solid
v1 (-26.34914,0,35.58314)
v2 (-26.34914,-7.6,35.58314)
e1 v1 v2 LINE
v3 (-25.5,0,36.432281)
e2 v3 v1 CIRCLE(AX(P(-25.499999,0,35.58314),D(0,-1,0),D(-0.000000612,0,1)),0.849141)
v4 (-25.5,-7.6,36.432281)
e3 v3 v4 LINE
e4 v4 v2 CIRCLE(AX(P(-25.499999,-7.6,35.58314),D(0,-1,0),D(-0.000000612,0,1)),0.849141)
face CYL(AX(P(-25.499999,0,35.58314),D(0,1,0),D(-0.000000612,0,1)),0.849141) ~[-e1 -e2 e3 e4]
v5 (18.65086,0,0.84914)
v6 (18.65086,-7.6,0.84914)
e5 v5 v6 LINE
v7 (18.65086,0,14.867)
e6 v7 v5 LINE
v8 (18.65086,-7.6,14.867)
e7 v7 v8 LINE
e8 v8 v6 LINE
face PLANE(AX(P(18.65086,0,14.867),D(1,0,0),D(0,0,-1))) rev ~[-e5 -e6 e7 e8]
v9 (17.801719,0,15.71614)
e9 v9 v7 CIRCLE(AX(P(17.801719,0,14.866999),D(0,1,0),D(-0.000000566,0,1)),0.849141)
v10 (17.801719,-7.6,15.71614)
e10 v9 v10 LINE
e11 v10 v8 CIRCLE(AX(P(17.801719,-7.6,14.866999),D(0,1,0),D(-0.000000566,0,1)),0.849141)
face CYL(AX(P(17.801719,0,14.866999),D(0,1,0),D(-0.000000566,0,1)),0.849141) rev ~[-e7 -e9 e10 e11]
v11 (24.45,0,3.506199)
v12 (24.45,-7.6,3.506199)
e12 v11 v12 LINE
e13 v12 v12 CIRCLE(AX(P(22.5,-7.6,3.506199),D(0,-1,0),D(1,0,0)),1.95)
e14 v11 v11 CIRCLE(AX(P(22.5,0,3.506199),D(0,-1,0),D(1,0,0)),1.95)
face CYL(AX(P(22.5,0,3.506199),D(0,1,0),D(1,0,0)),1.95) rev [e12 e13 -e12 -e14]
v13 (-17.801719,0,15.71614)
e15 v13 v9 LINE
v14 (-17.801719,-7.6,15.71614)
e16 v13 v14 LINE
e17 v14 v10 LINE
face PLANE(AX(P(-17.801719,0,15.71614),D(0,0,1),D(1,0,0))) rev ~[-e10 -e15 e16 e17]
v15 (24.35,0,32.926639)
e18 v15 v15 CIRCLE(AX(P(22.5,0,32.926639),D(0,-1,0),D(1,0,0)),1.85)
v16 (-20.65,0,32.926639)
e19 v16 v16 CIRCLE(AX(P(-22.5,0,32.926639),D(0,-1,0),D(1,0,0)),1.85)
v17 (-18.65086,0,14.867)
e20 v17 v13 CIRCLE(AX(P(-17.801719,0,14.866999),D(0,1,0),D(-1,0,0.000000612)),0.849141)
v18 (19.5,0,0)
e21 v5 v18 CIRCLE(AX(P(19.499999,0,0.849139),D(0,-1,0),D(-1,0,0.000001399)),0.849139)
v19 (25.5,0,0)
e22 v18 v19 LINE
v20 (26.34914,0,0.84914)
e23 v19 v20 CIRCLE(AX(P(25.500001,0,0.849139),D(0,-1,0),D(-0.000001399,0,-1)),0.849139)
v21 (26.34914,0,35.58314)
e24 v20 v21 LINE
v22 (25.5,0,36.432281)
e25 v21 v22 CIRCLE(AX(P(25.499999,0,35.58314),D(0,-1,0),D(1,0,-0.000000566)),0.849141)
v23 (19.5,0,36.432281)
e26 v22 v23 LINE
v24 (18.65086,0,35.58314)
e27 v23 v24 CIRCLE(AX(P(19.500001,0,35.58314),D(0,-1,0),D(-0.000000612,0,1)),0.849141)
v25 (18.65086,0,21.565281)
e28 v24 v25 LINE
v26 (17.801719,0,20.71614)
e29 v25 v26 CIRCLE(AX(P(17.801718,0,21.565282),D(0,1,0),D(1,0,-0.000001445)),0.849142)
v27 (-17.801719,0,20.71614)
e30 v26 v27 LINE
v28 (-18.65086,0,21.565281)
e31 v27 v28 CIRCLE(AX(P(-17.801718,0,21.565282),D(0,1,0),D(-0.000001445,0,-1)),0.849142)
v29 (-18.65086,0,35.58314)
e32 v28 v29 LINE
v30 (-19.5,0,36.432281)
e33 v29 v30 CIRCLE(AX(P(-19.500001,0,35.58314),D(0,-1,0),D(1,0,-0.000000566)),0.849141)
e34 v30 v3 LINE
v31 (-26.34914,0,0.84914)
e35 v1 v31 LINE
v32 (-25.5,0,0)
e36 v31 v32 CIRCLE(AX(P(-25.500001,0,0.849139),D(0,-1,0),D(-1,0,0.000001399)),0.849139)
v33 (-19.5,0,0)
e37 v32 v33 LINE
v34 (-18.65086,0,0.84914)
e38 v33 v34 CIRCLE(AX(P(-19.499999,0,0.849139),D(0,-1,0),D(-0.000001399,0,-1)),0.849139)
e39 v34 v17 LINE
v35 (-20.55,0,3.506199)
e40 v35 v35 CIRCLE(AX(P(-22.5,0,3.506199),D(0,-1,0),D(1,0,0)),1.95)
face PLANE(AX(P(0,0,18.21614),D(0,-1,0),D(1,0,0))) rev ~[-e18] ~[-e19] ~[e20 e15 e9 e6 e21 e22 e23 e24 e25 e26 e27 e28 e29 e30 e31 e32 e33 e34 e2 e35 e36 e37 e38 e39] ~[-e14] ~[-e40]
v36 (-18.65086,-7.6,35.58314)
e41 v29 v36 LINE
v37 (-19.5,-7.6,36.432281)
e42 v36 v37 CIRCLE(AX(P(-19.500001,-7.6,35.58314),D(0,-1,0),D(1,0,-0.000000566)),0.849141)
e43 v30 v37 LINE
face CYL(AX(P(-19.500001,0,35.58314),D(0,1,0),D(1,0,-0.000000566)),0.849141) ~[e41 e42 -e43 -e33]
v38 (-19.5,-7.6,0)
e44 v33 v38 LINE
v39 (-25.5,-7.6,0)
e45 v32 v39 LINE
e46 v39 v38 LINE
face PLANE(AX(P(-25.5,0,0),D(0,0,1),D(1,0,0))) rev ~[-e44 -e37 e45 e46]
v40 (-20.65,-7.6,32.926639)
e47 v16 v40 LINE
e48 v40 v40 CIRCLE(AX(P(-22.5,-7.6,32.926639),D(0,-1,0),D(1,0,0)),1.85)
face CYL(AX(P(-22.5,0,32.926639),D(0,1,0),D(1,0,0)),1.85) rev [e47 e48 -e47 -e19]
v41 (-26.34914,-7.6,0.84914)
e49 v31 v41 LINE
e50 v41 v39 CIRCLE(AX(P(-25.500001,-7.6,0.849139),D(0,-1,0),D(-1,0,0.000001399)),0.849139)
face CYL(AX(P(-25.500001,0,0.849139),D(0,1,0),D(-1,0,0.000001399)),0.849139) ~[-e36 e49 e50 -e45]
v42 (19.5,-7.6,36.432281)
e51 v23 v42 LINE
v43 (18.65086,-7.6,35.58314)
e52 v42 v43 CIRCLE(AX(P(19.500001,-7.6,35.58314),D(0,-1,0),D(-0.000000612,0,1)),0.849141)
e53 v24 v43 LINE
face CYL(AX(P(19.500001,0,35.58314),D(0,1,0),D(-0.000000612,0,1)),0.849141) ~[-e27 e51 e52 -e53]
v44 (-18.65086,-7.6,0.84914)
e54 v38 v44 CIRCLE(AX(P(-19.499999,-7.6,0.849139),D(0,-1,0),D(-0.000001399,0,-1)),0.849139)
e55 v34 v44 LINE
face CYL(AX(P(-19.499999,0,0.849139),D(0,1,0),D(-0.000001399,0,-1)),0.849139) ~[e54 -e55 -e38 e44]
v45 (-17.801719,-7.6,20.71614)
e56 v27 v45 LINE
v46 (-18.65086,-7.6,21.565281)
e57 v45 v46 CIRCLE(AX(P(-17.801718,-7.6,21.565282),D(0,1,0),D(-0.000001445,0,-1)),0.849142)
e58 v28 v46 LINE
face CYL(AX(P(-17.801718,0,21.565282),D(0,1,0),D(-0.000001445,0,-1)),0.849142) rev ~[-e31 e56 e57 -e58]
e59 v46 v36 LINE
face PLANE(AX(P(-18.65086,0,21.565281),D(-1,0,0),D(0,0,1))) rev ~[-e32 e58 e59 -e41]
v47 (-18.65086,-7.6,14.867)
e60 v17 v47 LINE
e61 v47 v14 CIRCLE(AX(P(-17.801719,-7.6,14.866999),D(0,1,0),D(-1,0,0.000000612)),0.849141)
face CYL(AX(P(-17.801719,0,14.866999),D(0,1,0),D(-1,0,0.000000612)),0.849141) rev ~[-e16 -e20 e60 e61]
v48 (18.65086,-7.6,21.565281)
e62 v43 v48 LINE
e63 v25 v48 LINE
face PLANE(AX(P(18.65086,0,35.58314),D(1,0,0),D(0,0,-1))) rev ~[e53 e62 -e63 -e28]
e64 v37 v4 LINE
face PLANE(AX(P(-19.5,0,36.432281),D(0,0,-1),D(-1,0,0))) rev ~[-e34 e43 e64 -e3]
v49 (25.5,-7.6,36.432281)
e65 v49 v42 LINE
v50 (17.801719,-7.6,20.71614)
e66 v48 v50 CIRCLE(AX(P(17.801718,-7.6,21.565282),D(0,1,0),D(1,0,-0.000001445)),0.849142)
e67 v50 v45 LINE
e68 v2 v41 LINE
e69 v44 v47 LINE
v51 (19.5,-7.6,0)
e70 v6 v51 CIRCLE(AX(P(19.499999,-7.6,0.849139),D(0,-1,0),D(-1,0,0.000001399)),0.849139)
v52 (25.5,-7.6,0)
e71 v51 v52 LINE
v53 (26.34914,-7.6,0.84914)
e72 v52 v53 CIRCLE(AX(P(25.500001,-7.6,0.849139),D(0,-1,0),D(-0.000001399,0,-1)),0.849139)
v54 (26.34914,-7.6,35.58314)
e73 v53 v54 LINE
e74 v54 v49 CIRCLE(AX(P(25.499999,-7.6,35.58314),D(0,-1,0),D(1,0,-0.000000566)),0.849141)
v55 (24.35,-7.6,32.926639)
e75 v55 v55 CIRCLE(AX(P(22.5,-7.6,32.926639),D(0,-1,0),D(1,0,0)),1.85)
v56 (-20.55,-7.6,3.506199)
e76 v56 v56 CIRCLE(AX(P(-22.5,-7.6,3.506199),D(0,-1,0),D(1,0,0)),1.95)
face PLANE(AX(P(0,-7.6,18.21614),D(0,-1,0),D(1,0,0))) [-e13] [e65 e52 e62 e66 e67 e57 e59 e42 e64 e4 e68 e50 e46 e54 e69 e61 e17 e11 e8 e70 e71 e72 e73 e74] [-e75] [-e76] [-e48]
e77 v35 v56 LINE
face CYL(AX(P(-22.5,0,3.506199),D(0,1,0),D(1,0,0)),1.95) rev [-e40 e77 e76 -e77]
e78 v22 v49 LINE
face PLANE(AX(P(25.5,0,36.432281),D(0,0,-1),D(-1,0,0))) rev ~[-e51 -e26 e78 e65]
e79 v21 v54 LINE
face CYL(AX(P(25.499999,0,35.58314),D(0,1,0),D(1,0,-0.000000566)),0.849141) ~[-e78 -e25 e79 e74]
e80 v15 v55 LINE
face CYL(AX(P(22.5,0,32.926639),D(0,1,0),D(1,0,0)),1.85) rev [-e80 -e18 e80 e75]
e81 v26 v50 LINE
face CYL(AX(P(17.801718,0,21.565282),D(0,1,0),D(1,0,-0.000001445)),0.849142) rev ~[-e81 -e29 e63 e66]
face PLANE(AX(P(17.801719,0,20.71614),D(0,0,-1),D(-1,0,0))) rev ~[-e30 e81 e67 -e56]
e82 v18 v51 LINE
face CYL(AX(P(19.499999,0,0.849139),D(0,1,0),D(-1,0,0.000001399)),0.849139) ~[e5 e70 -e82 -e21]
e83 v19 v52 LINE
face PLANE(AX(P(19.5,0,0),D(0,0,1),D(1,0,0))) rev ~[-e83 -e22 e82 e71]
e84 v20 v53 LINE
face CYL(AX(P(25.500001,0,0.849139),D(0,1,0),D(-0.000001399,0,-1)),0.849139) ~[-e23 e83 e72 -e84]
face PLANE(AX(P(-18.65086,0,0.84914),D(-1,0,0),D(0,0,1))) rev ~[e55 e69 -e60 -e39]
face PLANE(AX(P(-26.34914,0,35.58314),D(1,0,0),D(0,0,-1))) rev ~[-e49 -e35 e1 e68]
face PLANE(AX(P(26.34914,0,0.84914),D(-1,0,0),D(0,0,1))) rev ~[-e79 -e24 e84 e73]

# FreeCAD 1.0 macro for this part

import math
import FreeCAD as App
import Part
import Sketcher
from FreeCAD import Vector
Q = App.Units.Quantity

doc = App.newDocument("Part")
params = doc.addObject("Spreadsheet::Sheet", "Params")
for row, (alias, value) in enumerate([
    ("sketch1_diameter", "3.9 mm"),
    ("sketch1_diameter2", "3.7 mm"),
    ("sketch1_width", "6 mm"),
    ("pad1_length", "7.6 mm"),
], start=1):
    params.set(f"A{row}", alias)
    params.set(f"B{row}", "=" + value)
    params.setAlias(f"B{row}", alias)

body = doc.addObject("PartDesign::Body", "Body")

sketch1 = body.newObject("Sketcher::SketchObject", "Sketch")
sketch1.AttachmentSupport = (doc.getObject("XZ_Plane"), [""])
sketch1.MapMode = "FlatFace"
sketch1.addGeometry([
    Part.LineSegment(Vector(-26.34914, 35.58314, 0), Vector(-26.34914, 0.84914, 0)),
    Part.ArcOfCircle(Part.Circle(Vector(-25.500001, 0.849139, 0), Vector(0, 0, 1), 0.849139), math.radians(179.99992), math.radians(270.00008)),
    Part.LineSegment(Vector(-25.5, 0, 0), Vector(-19.5, 0, 0)),
    Part.ArcOfCircle(Part.Circle(Vector(-19.499999, 0.849139, 0), Vector(0, 0, 1), 0.849139), math.radians(-90.00008), math.radians(0.00008)),
    Part.LineSegment(Vector(-18.65086, 0.84914, 0), Vector(-18.65086, 14.867, 0)),
    Part.ArcOfCircle(Part.Circle(Vector(-17.801719, 14.866999, 0), Vector(0, 0, 1), 0.849141), math.radians(89.999968), math.radians(179.999965)),
    Part.LineSegment(Vector(-17.801719, 15.71614, 0), Vector(17.801719, 15.71614, 0)),
    Part.ArcOfCircle(Part.Circle(Vector(17.801719, 14.866999, 0), Vector(0, 0, 1), 0.849141), math.radians(0.000035), math.radians(90.000032)),
    Part.LineSegment(Vector(18.65086, 14.867, 0), Vector(18.65086, 0.84914, 0)),
    Part.ArcOfCircle(Part.Circle(Vector(19.499999, 0.849139, 0), Vector(0, 0, 1), 0.849139), math.radians(179.99992), math.radians(270.00008)),
    Part.LineSegment(Vector(19.5, 0, 0), Vector(25.5, 0, 0)),
    Part.ArcOfCircle(Part.Circle(Vector(25.500001, 0.849139, 0), Vector(0, 0, 1), 0.849139), math.radians(-90.00008), math.radians(0.00008)),
    Part.LineSegment(Vector(26.34914, 0.84914, 0), Vector(26.34914, 35.58314, 0)),
    Part.ArcOfCircle(Part.Circle(Vector(25.499999, 35.58314, 0), Vector(0, 0, 1), 0.849141), math.radians(-0.000032), math.radians(89.999965)),
    Part.LineSegment(Vector(25.5, 36.432281, 0), Vector(19.5, 36.432281, 0)),
    Part.ArcOfCircle(Part.Circle(Vector(19.500001, 35.58314, 0), Vector(0, 0, 1), 0.849141), math.radians(90.000035), math.radians(180.000032)),
    Part.LineSegment(Vector(18.65086, 35.58314, 0), Vector(18.65086, 21.565281, 0)),
    Part.ArcOfCircle(Part.Circle(Vector(17.801718, 21.565282, 0), Vector(0, 0, 1), 0.849142), math.radians(-89.999917), math.radians(-0.000083)),
    Part.LineSegment(Vector(17.801719, 20.71614, 0), Vector(-17.801719, 20.71614, 0)),
    Part.ArcOfCircle(Part.Circle(Vector(-17.801718, 21.565282, 0), Vector(0, 0, 1), 0.849142), math.radians(-179.999917), math.radians(-90.000083)),
    Part.LineSegment(Vector(-18.65086, 21.565281, 0), Vector(-18.65086, 35.58314, 0)),
    Part.ArcOfCircle(Part.Circle(Vector(-19.500001, 35.58314, 0), Vector(0, 0, 1), 0.849141), math.radians(-0.000032), math.radians(89.999965)),
    Part.LineSegment(Vector(-19.5, 36.432281, 0), Vector(-25.5, 36.432281, 0)),
    Part.ArcOfCircle(Part.Circle(Vector(-25.499999, 35.58314, 0), Vector(0, 0, 1), 0.849141), math.radians(90.000035), math.radians(180.000032)),
    Part.Circle(Vector(-22.5, 3.506199, 0), Vector(0, 0, 1), 1.95),
    Part.Circle(Vector(22.5, 3.506199, 0), Vector(0, 0, 1), 1.95),
    Part.Circle(Vector(-22.5, 32.926639, 0), Vector(0, 0, 1), 1.85),
    Part.Circle(Vector(22.5, 32.926639, 0), Vector(0, 0, 1), 1.85),
], False)
sketch1.addConstraint([
    Sketcher.Constraint("Tangent", 0, 2, 1, 1),
    Sketcher.Constraint("Tangent", 1, 2, 2, 1),
    Sketcher.Constraint("Tangent", 2, 2, 3, 1),
    Sketcher.Constraint("Tangent", 3, 2, 4, 1),
    Sketcher.Constraint("Tangent", 4, 2, 5, 2),
    Sketcher.Constraint("Tangent", 5, 1, 6, 1),
    Sketcher.Constraint("Tangent", 6, 2, 7, 2),
    Sketcher.Constraint("Tangent", 7, 1, 8, 1),
    Sketcher.Constraint("Tangent", 8, 2, 9, 1),
    Sketcher.Constraint("Tangent", 9, 2, 10, 1),
    Sketcher.Constraint("Tangent", 10, 2, 11, 1),
    Sketcher.Constraint("Tangent", 11, 2, 12, 1),
    Sketcher.Constraint("Tangent", 12, 2, 13, 1),
    Sketcher.Constraint("Tangent", 13, 2, 14, 1),
    Sketcher.Constraint("Tangent", 14, 2, 15, 1),
    Sketcher.Constraint("Tangent", 15, 2, 16, 1),
    Sketcher.Constraint("Tangent", 16, 2, 17, 2),
    Sketcher.Constraint("Tangent", 17, 1, 18, 1),
    Sketcher.Constraint("Tangent", 18, 2, 19, 2),
    Sketcher.Constraint("Tangent", 19, 1, 20, 1),
    Sketcher.Constraint("Tangent", 20, 2, 21, 1),
    Sketcher.Constraint("Tangent", 21, 2, 22, 1),
    Sketcher.Constraint("Tangent", 22, 2, 23, 1),
    Sketcher.Constraint("Tangent", 23, 2, 0, 1),
    Sketcher.Constraint("Vertical", 0),
    Sketcher.Constraint("Horizontal", 2),
    Sketcher.Constraint("Vertical", 4),
    Sketcher.Constraint("Horizontal", 6),
    Sketcher.Constraint("Vertical", 8),
    Sketcher.Constraint("Horizontal", 10),
    Sketcher.Constraint("Vertical", 12),
    Sketcher.Constraint("Horizontal", 14),
    Sketcher.Constraint("Vertical", 16),
    Sketcher.Constraint("Horizontal", 18),
    Sketcher.Constraint("Vertical", 20),
    Sketcher.Constraint("Horizontal", 22),
    Sketcher.Constraint("Equal", 1, 3),
    Sketcher.Constraint("Equal", 3, 5),
    Sketcher.Constraint("Equal", 5, 7),
    Sketcher.Constraint("Equal", 7, 9),
    Sketcher.Constraint("Equal", 9, 11),
    Sketcher.Constraint("Equal", 11, 13),
    Sketcher.Constraint("Equal", 13, 15),
    Sketcher.Constraint("Equal", 15, 17),
    Sketcher.Constraint("Equal", 17, 19),
    Sketcher.Constraint("Equal", 19, 21),
    Sketcher.Constraint("Equal", 21, 23),
    Sketcher.Constraint("Equal", 24, 25),
    Sketcher.Constraint("Equal", 26, 27),
    Sketcher.Constraint("Symmetric", 2, 2, 9, 2, -1, 1),
    Sketcher.Constraint("Symmetric", 1, 3, 11, 3, -2),
    Sketcher.Constraint("Symmetric", 15, 3, 21, 3, -2),
    Sketcher.Constraint("Symmetric", 24, 3, 25, 3, -2),
    Sketcher.Constraint("Symmetric", 26, 3, 27, 3, -2),
    Sketcher.Constraint("Vertical", 9, 3, 15, 3),
    Sketcher.Constraint("Vertical", 24, 3, 26, 3),
    Sketcher.Constraint("Equal", 8, 16),
    Sketcher.Constraint("Diameter", 24, Q("3.9 mm")),
    Sketcher.Constraint("Diameter", 26, Q("3.7 mm")),
    Sketcher.Constraint("DistanceX", 2, 1, 2, 2, Q("6 mm")),
    Sketcher.Constraint("DistanceX", 1, 3, 9, 3, Q("45 mm")),
    Sketcher.Constraint("DistanceX", 1, 3, 24, 3, Q("3.000001 mm")),
    Sketcher.Constraint("DistanceY", 6, 2, 17, 1, Q("5 mm")),
    Sketcher.Constraint("DistanceY", 0, 2, 0, 1, Q("34.734 mm")),
    Sketcher.Constraint("Radius", 1, Q("0.849139 mm")),
    Sketcher.Constraint("DistanceY", -1, 1, 24, 3, Q("3.506199 mm")),
    Sketcher.Constraint("DistanceY", 26, 3, 21, 3, Q("2.656501 mm")),
])
sketch1.setExpression("Constraints[57]", "Params.sketch1_diameter")
sketch1.setExpression("Constraints[58]", "Params.sketch1_diameter2")
sketch1.setExpression("Constraints[59]", "Params.sketch1_width")
pad1 = body.newObject("PartDesign::Pad", "Pad")
pad1.Profile = sketch1
pad1.setExpression("Length", "Params.pad1_length")

doc.recompute()
